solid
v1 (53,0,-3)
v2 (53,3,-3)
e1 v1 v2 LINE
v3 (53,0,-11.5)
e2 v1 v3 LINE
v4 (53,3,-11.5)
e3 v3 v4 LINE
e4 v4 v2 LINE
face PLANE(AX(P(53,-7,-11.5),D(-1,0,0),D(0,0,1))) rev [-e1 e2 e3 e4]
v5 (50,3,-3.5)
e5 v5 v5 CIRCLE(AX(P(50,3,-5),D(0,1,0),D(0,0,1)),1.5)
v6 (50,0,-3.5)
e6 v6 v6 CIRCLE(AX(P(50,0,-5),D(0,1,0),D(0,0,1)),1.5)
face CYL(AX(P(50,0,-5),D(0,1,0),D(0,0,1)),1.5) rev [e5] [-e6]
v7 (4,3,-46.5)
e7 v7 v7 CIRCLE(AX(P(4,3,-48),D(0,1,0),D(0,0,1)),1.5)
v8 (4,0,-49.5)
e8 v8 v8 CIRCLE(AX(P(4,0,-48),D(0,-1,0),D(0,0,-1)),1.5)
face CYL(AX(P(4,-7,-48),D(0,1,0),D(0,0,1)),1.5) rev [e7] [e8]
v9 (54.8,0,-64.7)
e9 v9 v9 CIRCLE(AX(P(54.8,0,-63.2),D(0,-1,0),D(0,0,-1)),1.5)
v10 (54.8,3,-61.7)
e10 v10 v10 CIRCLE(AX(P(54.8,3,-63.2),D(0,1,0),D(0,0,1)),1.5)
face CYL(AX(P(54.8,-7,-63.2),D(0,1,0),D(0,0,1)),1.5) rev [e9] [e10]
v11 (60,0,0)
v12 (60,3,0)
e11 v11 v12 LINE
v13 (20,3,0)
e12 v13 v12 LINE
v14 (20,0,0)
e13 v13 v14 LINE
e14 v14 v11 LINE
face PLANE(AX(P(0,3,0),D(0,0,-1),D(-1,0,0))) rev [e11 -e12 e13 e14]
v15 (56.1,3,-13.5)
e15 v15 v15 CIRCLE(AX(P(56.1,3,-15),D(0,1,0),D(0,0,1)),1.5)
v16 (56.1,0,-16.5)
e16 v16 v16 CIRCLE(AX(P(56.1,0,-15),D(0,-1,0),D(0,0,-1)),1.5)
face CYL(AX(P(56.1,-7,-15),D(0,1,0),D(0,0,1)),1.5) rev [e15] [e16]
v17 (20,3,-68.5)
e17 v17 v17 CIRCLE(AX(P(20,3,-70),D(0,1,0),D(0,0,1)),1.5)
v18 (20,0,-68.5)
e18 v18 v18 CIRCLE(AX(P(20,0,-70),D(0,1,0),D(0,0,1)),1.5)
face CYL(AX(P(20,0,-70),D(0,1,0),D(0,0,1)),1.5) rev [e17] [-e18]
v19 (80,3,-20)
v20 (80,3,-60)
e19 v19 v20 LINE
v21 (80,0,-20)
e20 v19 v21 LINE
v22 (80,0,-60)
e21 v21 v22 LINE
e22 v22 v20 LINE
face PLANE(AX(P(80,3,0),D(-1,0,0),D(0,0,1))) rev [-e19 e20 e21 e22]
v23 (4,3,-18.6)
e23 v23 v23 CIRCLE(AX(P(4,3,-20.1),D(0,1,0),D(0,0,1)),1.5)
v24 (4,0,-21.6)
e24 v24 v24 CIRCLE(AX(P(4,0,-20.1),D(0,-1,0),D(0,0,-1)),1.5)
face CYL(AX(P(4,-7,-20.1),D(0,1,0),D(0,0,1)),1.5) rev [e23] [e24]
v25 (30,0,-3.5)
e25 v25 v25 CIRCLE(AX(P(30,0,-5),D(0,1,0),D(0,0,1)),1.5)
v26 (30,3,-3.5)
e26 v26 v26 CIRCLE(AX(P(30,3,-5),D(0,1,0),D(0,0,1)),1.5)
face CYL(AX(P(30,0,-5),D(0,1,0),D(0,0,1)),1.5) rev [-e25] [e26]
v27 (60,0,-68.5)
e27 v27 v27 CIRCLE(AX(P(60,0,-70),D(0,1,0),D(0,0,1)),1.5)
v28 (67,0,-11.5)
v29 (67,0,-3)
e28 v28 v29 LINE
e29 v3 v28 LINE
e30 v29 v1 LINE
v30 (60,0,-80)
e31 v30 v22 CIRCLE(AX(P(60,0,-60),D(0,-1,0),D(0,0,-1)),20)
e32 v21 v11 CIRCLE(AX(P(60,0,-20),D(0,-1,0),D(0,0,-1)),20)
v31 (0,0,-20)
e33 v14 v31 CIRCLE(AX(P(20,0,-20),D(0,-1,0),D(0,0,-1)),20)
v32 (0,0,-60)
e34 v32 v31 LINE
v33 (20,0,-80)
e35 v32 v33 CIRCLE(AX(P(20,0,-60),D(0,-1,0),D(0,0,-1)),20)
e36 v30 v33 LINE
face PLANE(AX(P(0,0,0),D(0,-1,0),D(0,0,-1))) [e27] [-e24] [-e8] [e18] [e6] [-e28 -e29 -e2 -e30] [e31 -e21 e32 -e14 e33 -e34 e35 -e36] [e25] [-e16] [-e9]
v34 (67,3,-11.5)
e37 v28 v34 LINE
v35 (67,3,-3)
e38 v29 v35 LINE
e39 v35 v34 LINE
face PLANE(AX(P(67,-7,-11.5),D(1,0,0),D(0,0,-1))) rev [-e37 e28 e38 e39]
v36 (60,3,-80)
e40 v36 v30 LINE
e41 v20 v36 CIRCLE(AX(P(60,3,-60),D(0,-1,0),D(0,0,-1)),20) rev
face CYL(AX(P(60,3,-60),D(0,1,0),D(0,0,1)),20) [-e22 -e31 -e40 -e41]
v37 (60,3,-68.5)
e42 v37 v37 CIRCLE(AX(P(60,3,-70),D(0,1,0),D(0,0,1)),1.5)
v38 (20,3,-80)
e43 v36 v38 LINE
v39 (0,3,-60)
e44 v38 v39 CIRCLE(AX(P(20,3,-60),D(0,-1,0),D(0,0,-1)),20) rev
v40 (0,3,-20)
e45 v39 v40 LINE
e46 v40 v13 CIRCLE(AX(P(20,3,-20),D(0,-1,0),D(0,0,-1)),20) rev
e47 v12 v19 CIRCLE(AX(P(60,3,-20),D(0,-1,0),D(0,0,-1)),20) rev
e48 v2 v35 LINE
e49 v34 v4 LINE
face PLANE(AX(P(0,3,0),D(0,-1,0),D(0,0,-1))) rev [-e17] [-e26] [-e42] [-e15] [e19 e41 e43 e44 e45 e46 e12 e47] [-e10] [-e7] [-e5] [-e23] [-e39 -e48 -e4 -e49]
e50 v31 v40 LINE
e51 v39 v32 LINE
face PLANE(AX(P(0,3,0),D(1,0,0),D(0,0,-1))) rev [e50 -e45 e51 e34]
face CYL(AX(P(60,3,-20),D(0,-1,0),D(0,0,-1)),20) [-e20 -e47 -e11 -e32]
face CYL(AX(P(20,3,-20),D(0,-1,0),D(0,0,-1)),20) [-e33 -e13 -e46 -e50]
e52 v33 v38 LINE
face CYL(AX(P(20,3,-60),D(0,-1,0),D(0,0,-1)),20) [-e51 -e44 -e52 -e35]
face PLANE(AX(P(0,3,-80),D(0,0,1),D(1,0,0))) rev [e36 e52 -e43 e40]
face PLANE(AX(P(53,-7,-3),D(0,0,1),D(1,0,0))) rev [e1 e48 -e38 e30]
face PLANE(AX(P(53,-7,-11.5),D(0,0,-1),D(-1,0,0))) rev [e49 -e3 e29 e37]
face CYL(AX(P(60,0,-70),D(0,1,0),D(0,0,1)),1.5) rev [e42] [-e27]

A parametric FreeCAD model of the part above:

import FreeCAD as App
import Part
import Sketcher
Q = App.Units.Quantity


def edges_at(feature, points):
    """Names of the edges that pass closest to the given points."""
    edges = feature.Shape.Edges
    near = lambda p: min(range(len(edges)), key=lambda i: edges[i].distToShape(Part.Vertex(*p))[0])
    return sorted({f"Edge{near(p) + 1}" for p in points})


def add_polygon(sketch, points):
    """Adds a closed chain of lines whose ends are joined by coincident constraints."""
    first, n = sketch.GeometryCount, len(points)
    for a, b in zip(points, points[1:] + points[:1]):
        sketch.addGeometry(Part.LineSegment(App.Vector(*a, 0), App.Vector(*b, 0)), False)
    for i in range(n):
        sketch.addConstraint(Sketcher.Constraint("Coincident", first + i, 2, first + (i + 1) % n, 1))

doc = App.newDocument("Part")
body = doc.addObject("PartDesign::Body", "Body")

sketch1 = doc.addObject("Sketcher::SketchObject", "Sketch")
body.addObject(sketch1)
sketch1.AttachmentSupport = (doc.XZ_Plane, [""])
sketch1.MapMode = "FlatFace"
add_polygon(sketch1, [(0, -80), (0, 0), (80, 0), (80, -80)])
sketch1.addConstraint([
    Sketcher.Constraint("Vertical", 0),
    Sketcher.Constraint("Horizontal", 1),
    Sketcher.Constraint("Vertical", 2),
    Sketcher.Constraint("Horizontal", 3),
    Sketcher.Constraint("Coincident", 0, 2, -1, 1),
    Sketcher.Constraint("Equal", 3, 0),
    Sketcher.Constraint("DistanceX", 1, 1, 1, 2, Q("80 mm")),
])
pad1 = doc.addObject("PartDesign::Pad", "Pad")
body.addObject(pad1)
pad1.Profile = sketch1
pad1.Length = 3
pad1.Reversed = True
doc.recompute()

fillet = doc.addObject("PartDesign::Fillet", "Fillet")
body.addObject(fillet)
fillet.Base = (pad1, edges_at(pad1, [(0, 1.5, -80)]))
fillet.Radius = 20
doc.recompute()

fillet2 = doc.addObject("PartDesign::Fillet", "Fillet001")
body.addObject(fillet2)
fillet2.Base = (fillet, edges_at(fillet, [(80, 1.5, -80)]))
fillet2.Radius = 20
doc.recompute()

fillet3 = doc.addObject("PartDesign::Fillet", "Fillet002")
body.addObject(fillet3)
fillet3.Base = (fillet2, edges_at(fillet2, [(80, 1.5, 0)]))
fillet3.Radius = 20
doc.recompute()

fillet4 = doc.addObject("PartDesign::Fillet", "Fillet003")
body.addObject(fillet4)
fillet4.Base = (fillet3, edges_at(fillet3, [(0, 1.5, 0)]))
fillet4.Radius = 20

sketch2 = doc.addObject("Sketcher::SketchObject", "Sketch001")
body.addObject(sketch2)
sketch2.AttachmentSupport = (doc.XZ_Plane, [""])
sketch2.MapMode = "FlatFace"
sketch2.AttachmentOffset = App.Placement(App.Vector(0, 0, -3), App.Rotation())
sketch2.addGeometry([
    Part.Circle(App.Vector(30, -5, 0), App.Vector(0, 0, 1), 1.5),
    Part.Circle(App.Vector(50, -5, 0), App.Vector(0, 0, 1), 1.5),
], False)
sketch2.addConstraint([
    Sketcher.Constraint("Equal", 0, 1),
    Sketcher.Constraint("Horizontal", 0, 3, 1, 3),
    Sketcher.Constraint("Diameter", 0, Q("3 mm")),
    Sketcher.Constraint("DistanceX", -1, 1, 0, 3, Q("30 mm")),
    Sketcher.Constraint("DistanceY", 0, 3, -1, 1, Q("5 mm")),
    Sketcher.Constraint("DistanceX", -1, 1, 1, 3, Q("50 mm")),
])
pocket1 = doc.addObject("PartDesign::Pocket", "Pocket")
body.addObject(pocket1)
pocket1.Profile = sketch2
pocket1.Length = 3
pocket1.Reversed = True

sketch3 = doc.addObject("Sketcher::SketchObject", "Sketch002")
body.addObject(sketch3)
sketch3.AttachmentSupport = (doc.XZ_Plane, [""])
sketch3.MapMode = "FlatFace"
sketch3.AttachmentOffset = App.Placement(App.Vector(0, 0, -3), App.Rotation())
sketch3.addGeometry([
    Part.Circle(App.Vector(20, -70, 0), App.Vector(0, 0, 1), 1.5),
    Part.Circle(App.Vector(60, -70, 0), App.Vector(0, 0, 1), 1.5),
], False)
sketch3.addConstraint([
    Sketcher.Constraint("Equal", 0, 1),
    Sketcher.Constraint("Horizontal", 0, 3, 1, 3),
    Sketcher.Constraint("Diameter", 0, Q("3 mm")),
    Sketcher.Constraint("DistanceX", -1, 1, 0, 3, Q("20 mm")),
    Sketcher.Constraint("DistanceY", 0, 3, -1, 1, Q("70 mm")),
    Sketcher.Constraint("DistanceX", -1, 1, 1, 3, Q("60 mm")),
])
pocket2 = doc.addObject("PartDesign::Pocket", "Pocket001")
body.addObject(pocket2)
pocket2.Profile = sketch3
pocket2.Length = 3
pocket2.Reversed = True

sketch4 = doc.addObject("Sketcher::SketchObject", "Sketch003")
body.addObject(sketch4)
sketch4.AttachmentSupport = (doc.XZ_Plane, [""])
sketch4.MapMode = "FlatFace"
sketch4.AttachmentOffset = App.Placement(App.Vector(0, 0, -3), App.Rotation())
sketch4.addGeometry([
    Part.Circle(App.Vector(4, -20.1, 0), App.Vector(0, 0, 1), 1.5),
    Part.Circle(App.Vector(4, -48, 0), App.Vector(0, 0, 1), 1.5),
    Part.Circle(App.Vector(54.8, -63.2, 0), App.Vector(0, 0, 1), 1.5),
    Part.Circle(App.Vector(56.1, -15, 0), App.Vector(0, 0, 1), 1.5),
], False)
sketch4.addConstraint([
    Sketcher.Constraint("Equal", 0, 1),
    Sketcher.Constraint("Equal", 1, 2),
    Sketcher.Constraint("Equal", 2, 3),
    Sketcher.Constraint("Vertical", 0, 3, 1, 3),
    Sketcher.Constraint("Diameter", 0, Q("3 mm")),
    Sketcher.Constraint("DistanceX", -1, 1, 0, 3, Q("4 mm")),
    Sketcher.Constraint("DistanceY", 1, 3, -1, 1, Q("48 mm")),
    Sketcher.Constraint("DistanceY", 3, 3, -1, 1, Q("15 mm")),
    Sketcher.Constraint("DistanceY", 0, 3, -1, 1, Q("20.1 mm")),
    Sketcher.Constraint("DistanceX", -1, 1, 2, 3, Q("54.8 mm")),
    Sketcher.Constraint("DistanceY", 2, 3, -1, 1, Q("63.2 mm")),
    Sketcher.Constraint("DistanceX", -1, 1, 3, 3, Q("56.1 mm")),
])
pocket3 = doc.addObject("PartDesign::Pocket", "Pocket002")
body.addObject(pocket3)
pocket3.Profile = sketch4
pocket3.Length = 10
pocket3.Reversed = True

sketch5 = doc.addObject("Sketcher::SketchObject", "Sketch004")
body.addObject(sketch5)
sketch5.AttachmentSupport = (doc.XZ_Plane, [""])
sketch5.MapMode = "FlatFace"
sketch5.AttachmentOffset = App.Placement(App.Vector(0, 0, -3), App.Rotation())
add_polygon(sketch5, [(53, -12), (53, -3), (67, -3), (67, -12)])
sketch5.addConstraint([
    Sketcher.Constraint("Vertical", 0),
    Sketcher.Constraint("Horizontal", 1),
    Sketcher.Constraint("Vertical", 2),
    Sketcher.Constraint("Horizontal", 3),
    Sketcher.Constraint("DistanceX", 1, 1, 1, 2, Q("14 mm")),
    Sketcher.Constraint("DistanceY", 0, 1, 0, 2, Q("8.5 mm")),
    Sketcher.Constraint("DistanceX", -1, 1, 0, 2, Q("53 mm")),
    Sketcher.Constraint("DistanceY", 0, 2, -1, 1, Q("3 mm")),
])
pocket4 = doc.addObject("PartDesign::Pocket", "Pocket003")
body.addObject(pocket4)
pocket4.Profile = sketch5
pocket4.Length = 10
pocket4.Reversed = True

doc.recompute()
